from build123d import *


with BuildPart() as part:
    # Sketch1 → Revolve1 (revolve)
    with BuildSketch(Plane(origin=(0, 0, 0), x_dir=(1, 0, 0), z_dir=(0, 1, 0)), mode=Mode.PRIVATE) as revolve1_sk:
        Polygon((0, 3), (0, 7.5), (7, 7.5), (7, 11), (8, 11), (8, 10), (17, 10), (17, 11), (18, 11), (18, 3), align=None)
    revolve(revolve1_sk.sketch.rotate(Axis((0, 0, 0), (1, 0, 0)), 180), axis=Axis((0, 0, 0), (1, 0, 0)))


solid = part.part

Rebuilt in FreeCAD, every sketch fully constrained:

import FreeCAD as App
import Part
import Sketcher
Q = App.Units.Quantity


def add_polygon(sketch, points):
    """Adds a closed chain of lines whose ends are joined by coincident constraints."""
    first, n = sketch.GeometryCount, len(points)
    for a, b in zip(points, points[1:] + points[:1]):
        sketch.addGeometry(Part.LineSegment(App.Vector(*a, 0), App.Vector(*b, 0)), False)
    for i in range(n):
        sketch.addConstraint(Sketcher.Constraint("Coincident", first + i, 2, first + (i + 1) % n, 1))

doc = App.newDocument("Part")
params = doc.addObject("Spreadsheet::Sheet", "Params")
for row, (alias, value) in enumerate([
    ("sketch1_width", "18 mm"),
    ("sketch1_width2", "1 mm"),
    ("sketch1_width3", "9 mm"),
    ("sketch1_height", "8 mm"),
    ("sketch1_height2", "4.5 mm"),
    ("revolution_angle", "360 deg"),
], start=1):
    params.set(f"A{row}", alias)
    params.set(f"B{row}", "=" + value)
    params.setAlias(f"B{row}", alias)

body = doc.addObject("PartDesign::Body", "Body")

sketch1 = doc.addObject("Sketcher::SketchObject", "Sketch")
body.addObject(sketch1)
sketch1.AttachmentSupport = (doc.XZ_Plane, [""])
sketch1.MapMode = "FlatFace"
add_polygon(sketch1, [(0, -7.5), (0, -3), (18, -3), (18, -11), (17, -11), (17, -10), (8, -10), (8, -11), (7, -11), (7, -7.5)])
sketch1.addConstraint([
    Sketcher.Constraint("Vertical", 0),
    Sketcher.Constraint("Horizontal", 1),
    Sketcher.Constraint("Vertical", 2),
    Sketcher.Constraint("Horizontal", 3),
    Sketcher.Constraint("Vertical", 4),
    Sketcher.Constraint("Horizontal", 5),
    Sketcher.Constraint("Vertical", 6),
    Sketcher.Constraint("Horizontal", 7),
    Sketcher.Constraint("Vertical", 8),
    Sketcher.Constraint("Horizontal", 9),
    Sketcher.Constraint("PointOnObject", 0, 2, -2),
    Sketcher.Constraint("Horizontal", 3, 2, 6, 2),
    Sketcher.Constraint("Equal", 3, 7),
    Sketcher.Constraint("Equal", 7, 4),
    Sketcher.Constraint("DistanceX", 1, 1, 1, 2, Q("18 mm")),
    Sketcher.Constraint("DistanceX", 3, 2, 3, 1, Q("1 mm")),
    Sketcher.Constraint("DistanceX", 5, 2, 5, 1, Q("9 mm")),
    Sketcher.Constraint("DistanceY", 2, 2, 2, 1, Q("8 mm")),
    Sketcher.Constraint("DistanceY", 0, 1, 0, 2, Q("4.5 mm")),
    Sketcher.Constraint("DistanceY", 0, 2, -1, 1, Q("3 mm")),
])
sketch1.setExpression("Constraints[24]", "Params.sketch1_width")
sketch1.setExpression("Constraints[25]", "Params.sketch1_width2")
sketch1.setExpression("Constraints[26]", "Params.sketch1_width3")
sketch1.setExpression("Constraints[27]", "Params.sketch1_height")
sketch1.setExpression("Constraints[28]", "Params.sketch1_height2")
revolution = doc.addObject("PartDesign::Revolution", "Revolution")
body.addObject(revolution)
revolution.Profile = sketch1
revolution.ReferenceAxis = (sketch1, ["H_Axis"])
revolution.setExpression("Angle", "Params.revolution_angle")

doc.recompute()
